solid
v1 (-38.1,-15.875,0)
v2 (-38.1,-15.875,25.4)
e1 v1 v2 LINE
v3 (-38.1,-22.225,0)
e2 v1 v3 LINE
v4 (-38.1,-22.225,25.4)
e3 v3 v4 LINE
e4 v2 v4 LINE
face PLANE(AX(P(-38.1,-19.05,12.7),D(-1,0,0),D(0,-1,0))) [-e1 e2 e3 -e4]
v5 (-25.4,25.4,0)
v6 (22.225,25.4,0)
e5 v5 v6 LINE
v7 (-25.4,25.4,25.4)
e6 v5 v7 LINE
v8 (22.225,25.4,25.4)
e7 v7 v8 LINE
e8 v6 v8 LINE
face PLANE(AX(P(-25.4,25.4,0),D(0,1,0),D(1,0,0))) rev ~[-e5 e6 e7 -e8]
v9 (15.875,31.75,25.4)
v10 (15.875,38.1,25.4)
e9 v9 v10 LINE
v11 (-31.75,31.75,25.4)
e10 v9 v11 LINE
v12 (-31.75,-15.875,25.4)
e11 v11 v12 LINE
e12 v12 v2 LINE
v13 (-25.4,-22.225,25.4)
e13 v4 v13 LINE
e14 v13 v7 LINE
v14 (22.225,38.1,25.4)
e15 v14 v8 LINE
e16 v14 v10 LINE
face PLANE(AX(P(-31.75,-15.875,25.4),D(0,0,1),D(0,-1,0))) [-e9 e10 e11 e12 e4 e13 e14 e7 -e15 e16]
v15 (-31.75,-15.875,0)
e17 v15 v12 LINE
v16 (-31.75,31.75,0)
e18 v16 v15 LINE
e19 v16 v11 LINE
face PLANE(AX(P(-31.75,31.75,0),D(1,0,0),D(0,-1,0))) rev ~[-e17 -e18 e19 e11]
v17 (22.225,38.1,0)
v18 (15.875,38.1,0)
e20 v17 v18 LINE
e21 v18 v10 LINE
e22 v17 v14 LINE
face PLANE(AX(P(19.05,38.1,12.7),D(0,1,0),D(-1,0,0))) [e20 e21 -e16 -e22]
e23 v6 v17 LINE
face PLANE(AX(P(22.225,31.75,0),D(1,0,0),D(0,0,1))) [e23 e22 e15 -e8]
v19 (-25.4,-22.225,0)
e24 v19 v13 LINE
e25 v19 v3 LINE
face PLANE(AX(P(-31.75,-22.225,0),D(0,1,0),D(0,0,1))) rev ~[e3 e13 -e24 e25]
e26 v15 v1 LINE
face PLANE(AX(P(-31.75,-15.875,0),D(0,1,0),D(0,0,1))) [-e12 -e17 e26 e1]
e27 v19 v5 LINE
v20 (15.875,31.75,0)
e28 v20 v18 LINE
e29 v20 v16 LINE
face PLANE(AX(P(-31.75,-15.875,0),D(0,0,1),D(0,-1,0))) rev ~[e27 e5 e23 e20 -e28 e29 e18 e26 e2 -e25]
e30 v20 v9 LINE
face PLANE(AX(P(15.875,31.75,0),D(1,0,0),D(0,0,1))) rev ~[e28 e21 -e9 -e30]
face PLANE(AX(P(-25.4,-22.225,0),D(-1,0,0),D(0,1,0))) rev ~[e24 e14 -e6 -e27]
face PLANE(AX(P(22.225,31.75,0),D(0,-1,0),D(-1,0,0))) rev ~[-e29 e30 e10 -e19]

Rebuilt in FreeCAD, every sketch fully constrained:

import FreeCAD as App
import Part
import Sketcher
Q = App.Units.Quantity

doc = App.newDocument("Part")
body = doc.addObject("PartDesign::Body", "Body")

# Sketch on XY plane
sketch1 = body.newObject("Sketcher::SketchObject", "Sketch")
sketch1.AttachmentSupport = (doc.getObject("XY_Plane"), [""])
sketch1.MapMode = "FlatFace"
sketch1.addGeometry(Part.LineSegment(App.Vector(-31.75, -22.225, 0), App.Vector(-25.4, -22.225, 0)), False)
sketch1.addGeometry(Part.LineSegment(App.Vector(-25.4, -22.225, 0), App.Vector(-25.4, 25.4, 0)), False)
sketch1.addGeometry(Part.LineSegment(App.Vector(-25.4, 25.4, 0), App.Vector(22.225, 25.4, 0)), False)
sketch1.addGeometry(Part.LineSegment(App.Vector(22.225, 25.4, 0), App.Vector(22.225, 31.75, 0)), False)
sketch1.addGeometry(Part.LineSegment(App.Vector(22.225, 31.75, 0), App.Vector(-31.75, 31.75, 0)), False)
sketch1.addGeometry(Part.LineSegment(App.Vector(-31.75, 31.75, 0), App.Vector(-31.75, -22.225, 0)), False)
sketch1.addConstraint(Sketcher.Constraint("Coincident", 0, 2, 1, 1))
sketch1.addConstraint(Sketcher.Constraint("Coincident", 1, 2, 2, 1))
sketch1.addConstraint(Sketcher.Constraint("Coincident", 2, 2, 3, 1))
sketch1.addConstraint(Sketcher.Constraint("Coincident", 3, 2, 4, 1))
sketch1.addConstraint(Sketcher.Constraint("Coincident", 4, 2, 5, 1))
sketch1.addConstraint(Sketcher.Constraint("Coincident", 5, 2, 0, 1))
sketch1.addConstraint(Sketcher.Constraint("Horizontal", 0))
sketch1.addConstraint(Sketcher.Constraint("Vertical", 1))
sketch1.addConstraint(Sketcher.Constraint("Horizontal", 2))
sketch1.addConstraint(Sketcher.Constraint("Vertical", 3))
sketch1.addConstraint(Sketcher.Constraint("Horizontal", 4))
sketch1.addConstraint(Sketcher.Constraint("Vertical", 5))
sketch1.addConstraint(Sketcher.Constraint("Equal", 2, 1))
sketch1.addConstraint(Sketcher.Constraint("Equal", 0, 3))
sketch1.addConstraint(Sketcher.Constraint("DistanceX", 0, 2, -1, 1, Q("1 in")))
sketch1.addConstraint(Sketcher.Constraint("DistanceY", -1, 1, 1, 2, Q("1 in")))
sketch1.addConstraint(Sketcher.Constraint("DistanceX", 0, 1, 0, 2, Q("0.25 in")))
sketch1.addConstraint(Sketcher.Constraint("DistanceX", 2, 1, 2, 2, Q("1.875 in")))
pad1 = body.newObject("PartDesign::Pad", "Pad")
pad1.Profile = sketch1
pad1.Length = Q("1 in")

# Sketch on XZ plane
sketch2 = body.newObject("Sketcher::SketchObject", "Sketch001")
sketch2.AttachmentSupport = (doc.getObject("XZ_Plane"), [""])
sketch2.MapMode = "FlatFace"
sketch2.AttachmentOffset = App.Placement(App.Vector(0, 0, -1.25 * 25.4), App.Rotation())
sketch2.addGeometry(Part.LineSegment(App.Vector(22.225, 25.4, 0), App.Vector(22.225, 0, 0)), False)
sketch2.addGeometry(Part.LineSegment(App.Vector(22.225, 0, 0), App.Vector(15.875, 0, 0)), False)
sketch2.addGeometry(Part.LineSegment(App.Vector(15.875, 0, 0), App.Vector(15.875, 25.4, 0)), False)
sketch2.addGeometry(Part.LineSegment(App.Vector(15.875, 25.4, 0), App.Vector(22.225, 25.4, 0)), False)
sketch2.addConstraint(Sketcher.Constraint("Coincident", 0, 2, 1, 1))
sketch2.addConstraint(Sketcher.Constraint("Coincident", 1, 2, 2, 1))
sketch2.addConstraint(Sketcher.Constraint("Coincident", 2, 2, 3, 1))
sketch2.addConstraint(Sketcher.Constraint("Coincident", 3, 2, 0, 1))
sketch2.addConstraint(Sketcher.Constraint("Vertical", 0))
sketch2.addConstraint(Sketcher.Constraint("Horizontal", 1))
sketch2.addConstraint(Sketcher.Constraint("Vertical", 2))
sketch2.addConstraint(Sketcher.Constraint("Horizontal", 3))
sketch2.addConstraint(Sketcher.Constraint("PointOnObject", 0, 2, -1))
sketch2.addConstraint(Sketcher.Constraint("DistanceY", 0, 2, 0, 1, Q("1 in")))
sketch2.addConstraint(Sketcher.Constraint("DistanceX", 1, 2, 1, 1, Q("0.25 in")))
sketch2.addConstraint(Sketcher.Constraint("DistanceX", -1, 1, 0, 2, Q("0.875 in")))
pad2 = body.newObject("PartDesign::Pad", "Pad001")
pad2.Profile = sketch2
pad2.Length = Q("0.25 in")
pad2.Reversed = True

# Sketch on YZ plane
sketch3 = body.newObject("Sketcher::SketchObject", "Sketch002")
sketch3.AttachmentSupport = (doc.getObject("YZ_Plane"), [""])
sketch3.MapMode = "FlatFace"
sketch3.AttachmentOffset = App.Placement(App.Vector(0, 0, -1.25 * 25.4), App.Rotation())
sketch3.addGeometry(Part.LineSegment(App.Vector(-15.875, 25.4, 0), App.Vector(-15.875, 0, 0)), False)
sketch3.addGeometry(Part.LineSegment(App.Vector(-15.875, 0, 0), App.Vector(-22.225, 0, 0)), False)
sketch3.addGeometry(Part.LineSegment(App.Vector(-22.225, 0, 0), App.Vector(-22.225, 25.4, 0)), False)
sketch3.addGeometry(Part.LineSegment(App.Vector(-22.225, 25.4, 0), App.Vector(-15.875, 25.4, 0)), False)
sketch3.addConstraint(Sketcher.Constraint("Coincident", 0, 2, 1, 1))
sketch3.addConstraint(Sketcher.Constraint("Coincident", 1, 2, 2, 1))
sketch3.addConstraint(Sketcher.Constraint("Coincident", 2, 2, 3, 1))
sketch3.addConstraint(Sketcher.Constraint("Coincident", 3, 2, 0, 1))
sketch3.addConstraint(Sketcher.Constraint("Vertical", 0))
sketch3.addConstraint(Sketcher.Constraint("Horizontal", 1))
sketch3.addConstraint(Sketcher.Constraint("Vertical", 2))
sketch3.addConstraint(Sketcher.Constraint("Horizontal", 3))
sketch3.addConstraint(Sketcher.Constraint("PointOnObject", 0, 2, -1))
sketch3.addConstraint(Sketcher.Constraint("DistanceY", 0, 2, 0, 1, Q("1 in")))
sketch3.addConstraint(Sketcher.Constraint("DistanceX", 1, 2, 1, 1, Q("0.25 in")))
sketch3.addConstraint(Sketcher.Constraint("DistanceX", 0, 2, -1, 1, Q("0.625 in")))
pad3 = body.newObject("PartDesign::Pad", "Pad002")
pad3.Profile = sketch3
pad3.Length = Q("0.25 in")
pad3.Reversed = True

doc.recompute()
